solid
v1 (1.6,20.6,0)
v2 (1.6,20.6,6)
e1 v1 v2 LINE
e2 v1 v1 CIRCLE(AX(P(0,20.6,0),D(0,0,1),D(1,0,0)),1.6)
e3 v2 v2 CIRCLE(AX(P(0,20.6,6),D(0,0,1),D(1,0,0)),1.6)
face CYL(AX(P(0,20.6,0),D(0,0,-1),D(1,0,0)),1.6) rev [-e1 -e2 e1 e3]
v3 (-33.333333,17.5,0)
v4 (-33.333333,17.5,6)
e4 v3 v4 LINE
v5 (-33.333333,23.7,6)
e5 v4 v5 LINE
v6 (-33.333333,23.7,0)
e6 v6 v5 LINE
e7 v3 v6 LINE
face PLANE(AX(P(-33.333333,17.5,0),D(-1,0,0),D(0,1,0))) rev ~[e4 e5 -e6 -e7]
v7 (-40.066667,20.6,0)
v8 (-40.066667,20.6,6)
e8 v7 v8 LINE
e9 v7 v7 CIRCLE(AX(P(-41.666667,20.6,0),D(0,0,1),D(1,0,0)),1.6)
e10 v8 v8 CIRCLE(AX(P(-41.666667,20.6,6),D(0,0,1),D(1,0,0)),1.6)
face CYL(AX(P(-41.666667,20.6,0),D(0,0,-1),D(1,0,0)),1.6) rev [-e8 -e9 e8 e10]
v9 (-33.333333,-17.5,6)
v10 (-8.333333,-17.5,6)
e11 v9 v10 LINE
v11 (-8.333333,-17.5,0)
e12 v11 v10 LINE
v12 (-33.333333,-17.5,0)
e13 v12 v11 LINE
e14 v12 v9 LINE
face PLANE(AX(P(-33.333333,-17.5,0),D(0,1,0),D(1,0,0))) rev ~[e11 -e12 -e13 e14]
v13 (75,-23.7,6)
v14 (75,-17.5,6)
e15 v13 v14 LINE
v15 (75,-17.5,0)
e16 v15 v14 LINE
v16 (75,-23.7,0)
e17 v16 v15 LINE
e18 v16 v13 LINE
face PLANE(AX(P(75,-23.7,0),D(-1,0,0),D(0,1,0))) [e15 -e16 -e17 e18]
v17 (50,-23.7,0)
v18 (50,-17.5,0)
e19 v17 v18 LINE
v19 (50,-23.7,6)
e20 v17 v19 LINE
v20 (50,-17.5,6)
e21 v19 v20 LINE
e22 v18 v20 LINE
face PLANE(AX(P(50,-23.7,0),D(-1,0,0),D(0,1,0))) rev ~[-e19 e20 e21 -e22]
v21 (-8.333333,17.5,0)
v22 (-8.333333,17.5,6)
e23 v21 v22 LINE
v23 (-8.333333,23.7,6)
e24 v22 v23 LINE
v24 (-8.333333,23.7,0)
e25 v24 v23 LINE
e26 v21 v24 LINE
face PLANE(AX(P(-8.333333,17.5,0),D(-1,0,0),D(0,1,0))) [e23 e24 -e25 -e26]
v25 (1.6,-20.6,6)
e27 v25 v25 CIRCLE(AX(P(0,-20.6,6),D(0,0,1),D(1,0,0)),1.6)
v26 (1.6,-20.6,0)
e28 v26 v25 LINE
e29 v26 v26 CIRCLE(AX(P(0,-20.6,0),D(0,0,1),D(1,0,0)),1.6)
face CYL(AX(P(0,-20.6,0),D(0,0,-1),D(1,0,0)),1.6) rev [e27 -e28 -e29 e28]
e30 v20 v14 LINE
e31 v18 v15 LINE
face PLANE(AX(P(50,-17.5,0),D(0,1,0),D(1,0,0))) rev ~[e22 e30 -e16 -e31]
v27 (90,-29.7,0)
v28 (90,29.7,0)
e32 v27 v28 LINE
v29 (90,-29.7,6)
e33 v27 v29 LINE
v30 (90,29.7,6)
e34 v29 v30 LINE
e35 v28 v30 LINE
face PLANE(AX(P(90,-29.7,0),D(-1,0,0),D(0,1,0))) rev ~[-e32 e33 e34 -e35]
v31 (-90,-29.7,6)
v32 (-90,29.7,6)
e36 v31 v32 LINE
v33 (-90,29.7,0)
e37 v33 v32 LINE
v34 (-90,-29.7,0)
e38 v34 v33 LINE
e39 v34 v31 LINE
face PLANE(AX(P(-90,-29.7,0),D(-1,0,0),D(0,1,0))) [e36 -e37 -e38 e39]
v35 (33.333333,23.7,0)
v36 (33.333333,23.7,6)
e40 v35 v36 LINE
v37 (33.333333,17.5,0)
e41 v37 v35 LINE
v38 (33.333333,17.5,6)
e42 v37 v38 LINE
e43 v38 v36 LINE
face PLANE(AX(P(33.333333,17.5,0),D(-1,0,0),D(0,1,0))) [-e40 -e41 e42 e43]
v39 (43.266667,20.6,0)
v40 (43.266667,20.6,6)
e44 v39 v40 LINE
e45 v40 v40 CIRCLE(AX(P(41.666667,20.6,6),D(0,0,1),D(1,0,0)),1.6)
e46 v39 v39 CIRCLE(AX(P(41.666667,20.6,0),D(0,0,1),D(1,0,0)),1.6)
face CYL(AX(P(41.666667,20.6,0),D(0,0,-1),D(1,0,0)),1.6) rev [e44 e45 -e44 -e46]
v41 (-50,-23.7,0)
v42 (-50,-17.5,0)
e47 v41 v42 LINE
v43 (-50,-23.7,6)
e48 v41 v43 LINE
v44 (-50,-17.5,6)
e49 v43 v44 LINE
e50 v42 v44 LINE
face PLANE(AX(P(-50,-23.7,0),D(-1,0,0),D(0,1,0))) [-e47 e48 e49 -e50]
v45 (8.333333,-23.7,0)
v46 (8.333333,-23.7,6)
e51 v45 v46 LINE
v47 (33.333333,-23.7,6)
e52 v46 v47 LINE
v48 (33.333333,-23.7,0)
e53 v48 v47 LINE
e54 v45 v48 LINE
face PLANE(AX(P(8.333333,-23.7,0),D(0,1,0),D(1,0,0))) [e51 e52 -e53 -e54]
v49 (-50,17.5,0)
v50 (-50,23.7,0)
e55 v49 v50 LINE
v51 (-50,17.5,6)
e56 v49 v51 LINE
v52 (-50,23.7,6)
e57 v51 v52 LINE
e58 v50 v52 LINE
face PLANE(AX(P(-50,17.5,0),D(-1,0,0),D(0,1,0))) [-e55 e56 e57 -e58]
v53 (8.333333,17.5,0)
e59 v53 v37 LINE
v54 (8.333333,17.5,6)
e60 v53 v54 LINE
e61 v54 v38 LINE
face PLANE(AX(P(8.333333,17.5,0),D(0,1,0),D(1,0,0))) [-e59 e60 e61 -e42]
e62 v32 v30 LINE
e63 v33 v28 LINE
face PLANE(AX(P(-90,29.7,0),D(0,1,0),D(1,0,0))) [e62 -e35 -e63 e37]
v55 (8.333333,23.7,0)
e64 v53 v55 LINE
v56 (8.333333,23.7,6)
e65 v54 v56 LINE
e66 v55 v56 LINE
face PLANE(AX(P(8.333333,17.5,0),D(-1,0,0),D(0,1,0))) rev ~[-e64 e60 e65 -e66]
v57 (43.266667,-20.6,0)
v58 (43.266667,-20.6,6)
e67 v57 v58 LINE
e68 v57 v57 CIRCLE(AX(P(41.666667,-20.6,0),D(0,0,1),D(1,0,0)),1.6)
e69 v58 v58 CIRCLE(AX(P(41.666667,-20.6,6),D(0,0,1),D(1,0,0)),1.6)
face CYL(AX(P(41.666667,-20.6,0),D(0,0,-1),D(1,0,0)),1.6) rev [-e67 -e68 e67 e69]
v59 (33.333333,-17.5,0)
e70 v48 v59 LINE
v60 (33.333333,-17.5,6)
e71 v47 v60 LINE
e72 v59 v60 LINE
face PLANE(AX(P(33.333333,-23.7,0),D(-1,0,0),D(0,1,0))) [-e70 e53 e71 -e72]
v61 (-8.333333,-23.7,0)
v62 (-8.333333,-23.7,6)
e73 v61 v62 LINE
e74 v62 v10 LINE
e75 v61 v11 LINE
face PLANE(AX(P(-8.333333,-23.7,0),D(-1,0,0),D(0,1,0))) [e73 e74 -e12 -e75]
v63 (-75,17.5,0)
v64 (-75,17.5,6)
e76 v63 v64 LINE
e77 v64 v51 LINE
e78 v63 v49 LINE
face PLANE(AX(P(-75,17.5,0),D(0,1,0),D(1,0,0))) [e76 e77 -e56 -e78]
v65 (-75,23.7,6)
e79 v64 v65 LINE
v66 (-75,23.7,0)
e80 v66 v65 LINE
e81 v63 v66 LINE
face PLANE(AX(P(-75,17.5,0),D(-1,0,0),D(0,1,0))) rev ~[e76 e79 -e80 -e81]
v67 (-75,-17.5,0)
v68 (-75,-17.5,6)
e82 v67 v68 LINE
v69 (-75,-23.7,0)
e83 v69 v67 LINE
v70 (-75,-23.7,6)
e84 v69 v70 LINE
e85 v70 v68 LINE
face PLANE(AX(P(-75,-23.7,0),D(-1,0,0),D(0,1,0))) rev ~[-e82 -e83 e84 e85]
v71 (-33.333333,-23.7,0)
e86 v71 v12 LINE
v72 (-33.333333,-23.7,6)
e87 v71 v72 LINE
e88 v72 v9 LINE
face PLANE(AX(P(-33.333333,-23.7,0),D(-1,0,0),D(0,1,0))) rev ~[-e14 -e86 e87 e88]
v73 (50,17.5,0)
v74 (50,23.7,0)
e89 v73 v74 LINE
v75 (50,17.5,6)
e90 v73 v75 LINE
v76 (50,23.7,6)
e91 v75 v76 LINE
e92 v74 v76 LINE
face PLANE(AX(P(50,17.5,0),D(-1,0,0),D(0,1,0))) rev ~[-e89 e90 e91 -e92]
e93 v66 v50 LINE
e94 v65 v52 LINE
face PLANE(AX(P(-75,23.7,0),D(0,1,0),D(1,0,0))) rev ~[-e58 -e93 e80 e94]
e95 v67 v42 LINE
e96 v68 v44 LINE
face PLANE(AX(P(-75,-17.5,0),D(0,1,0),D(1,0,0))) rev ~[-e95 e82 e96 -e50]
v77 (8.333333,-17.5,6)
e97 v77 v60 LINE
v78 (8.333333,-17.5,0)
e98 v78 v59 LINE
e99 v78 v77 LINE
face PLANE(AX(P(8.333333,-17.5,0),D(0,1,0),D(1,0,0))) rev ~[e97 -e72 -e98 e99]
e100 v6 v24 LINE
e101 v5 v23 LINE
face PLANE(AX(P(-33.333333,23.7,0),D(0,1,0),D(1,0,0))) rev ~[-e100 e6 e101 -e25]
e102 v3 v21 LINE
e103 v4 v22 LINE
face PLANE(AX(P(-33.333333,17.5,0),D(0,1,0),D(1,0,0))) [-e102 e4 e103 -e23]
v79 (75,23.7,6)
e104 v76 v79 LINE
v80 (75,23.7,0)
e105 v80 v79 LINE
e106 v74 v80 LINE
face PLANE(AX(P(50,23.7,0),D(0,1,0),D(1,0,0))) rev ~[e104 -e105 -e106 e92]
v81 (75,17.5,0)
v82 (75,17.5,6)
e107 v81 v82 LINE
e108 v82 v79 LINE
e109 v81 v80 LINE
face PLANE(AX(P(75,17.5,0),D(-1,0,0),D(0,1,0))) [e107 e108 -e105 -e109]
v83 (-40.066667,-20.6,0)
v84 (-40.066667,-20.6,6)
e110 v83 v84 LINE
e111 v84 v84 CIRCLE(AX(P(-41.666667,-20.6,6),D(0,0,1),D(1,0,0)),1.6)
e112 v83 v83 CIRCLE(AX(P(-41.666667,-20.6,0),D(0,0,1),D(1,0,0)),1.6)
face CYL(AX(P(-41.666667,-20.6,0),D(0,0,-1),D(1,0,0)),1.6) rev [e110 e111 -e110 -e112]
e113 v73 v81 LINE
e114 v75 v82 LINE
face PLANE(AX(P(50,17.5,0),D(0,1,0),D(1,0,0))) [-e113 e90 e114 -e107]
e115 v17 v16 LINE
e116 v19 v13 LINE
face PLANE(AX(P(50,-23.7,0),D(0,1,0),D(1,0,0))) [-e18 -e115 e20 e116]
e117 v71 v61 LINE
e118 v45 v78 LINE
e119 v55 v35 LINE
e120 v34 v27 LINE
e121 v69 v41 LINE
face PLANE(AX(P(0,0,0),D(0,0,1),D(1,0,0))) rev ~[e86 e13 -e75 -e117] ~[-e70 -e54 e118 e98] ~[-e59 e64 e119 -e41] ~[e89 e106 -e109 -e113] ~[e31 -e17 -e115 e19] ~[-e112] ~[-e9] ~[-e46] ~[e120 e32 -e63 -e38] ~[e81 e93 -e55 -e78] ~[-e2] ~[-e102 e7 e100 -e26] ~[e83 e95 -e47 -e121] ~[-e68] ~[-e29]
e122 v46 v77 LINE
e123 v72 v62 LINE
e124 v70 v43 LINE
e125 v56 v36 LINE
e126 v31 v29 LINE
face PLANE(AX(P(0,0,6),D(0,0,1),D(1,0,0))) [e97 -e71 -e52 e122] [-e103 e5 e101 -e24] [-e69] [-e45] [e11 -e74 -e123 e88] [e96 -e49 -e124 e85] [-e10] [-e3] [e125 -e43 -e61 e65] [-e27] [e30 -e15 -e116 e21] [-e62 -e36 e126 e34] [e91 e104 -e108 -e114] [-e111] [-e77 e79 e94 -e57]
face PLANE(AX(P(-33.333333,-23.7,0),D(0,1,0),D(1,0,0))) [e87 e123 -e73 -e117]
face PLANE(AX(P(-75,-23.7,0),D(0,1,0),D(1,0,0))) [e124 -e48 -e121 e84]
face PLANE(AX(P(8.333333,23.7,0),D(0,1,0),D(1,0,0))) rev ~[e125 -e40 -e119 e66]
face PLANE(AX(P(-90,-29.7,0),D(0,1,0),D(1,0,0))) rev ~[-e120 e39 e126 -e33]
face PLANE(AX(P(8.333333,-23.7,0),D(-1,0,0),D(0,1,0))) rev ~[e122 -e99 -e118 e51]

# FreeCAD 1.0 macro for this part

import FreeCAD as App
import Part
import Sketcher
from FreeCAD import Vector
Q = App.Units.Quantity

doc = App.newDocument("Part")
params = doc.addObject("Spreadsheet::Sheet", "Params")
for row, (alias, value) in enumerate([
    ("sketch1_diameter", "3.2 mm"),
    ("sketch1_width", "180 mm"),
    ("sketch1_width2", "25 mm"),
    ("sketch1_height", "59.4 mm"),
    ("sketch1_height2", "6.2 mm"),
    ("pad1_length", "6 mm"),
], start=1):
    params.set(f"A{row}", alias)
    params.set(f"B{row}", "=" + value)
    params.setAlias(f"B{row}", alias)

body = doc.addObject("PartDesign::Body", "Body")

# Sketch on XY plane
sketch1 = body.newObject("Sketcher::SketchObject", "Sketch")
sketch1.AttachmentSupport = (doc.getObject("XY_Plane"), [""])
sketch1.MapMode = "FlatFace"
sketch1.addGeometry(Part.LineSegment(Vector(-90, 29.7, 0), Vector(-90, -29.7, 0)), False)
sketch1.addGeometry(Part.LineSegment(Vector(-90, -29.7, 0), Vector(90, -29.7, 0)), False)
sketch1.addGeometry(Part.LineSegment(Vector(90, -29.7, 0), Vector(90, 29.7, 0)), False)
sketch1.addGeometry(Part.LineSegment(Vector(90, 29.7, 0), Vector(-90, 29.7, 0)), False)
sketch1.addGeometry(Part.LineSegment(Vector(-50, -23.7, 0), Vector(-75, -23.7, 0)), False)
sketch1.addGeometry(Part.LineSegment(Vector(-75, -23.7, 0), Vector(-75, -17.5, 0)), False)
sketch1.addGeometry(Part.LineSegment(Vector(-75, -17.5, 0), Vector(-50, -17.5, 0)), False)
sketch1.addGeometry(Part.LineSegment(Vector(-50, -17.5, 0), Vector(-50, -23.7, 0)), False)
sketch1.addGeometry(Part.Circle(Vector(-41.7, -20.6, 0), Vector(0, 0, 1), 1.6), False)
sketch1.addGeometry(Part.LineSegment(Vector(-8.3, -23.7, 0), Vector(-33.3, -23.7, 0)), False)
sketch1.addGeometry(Part.LineSegment(Vector(-33.3, -23.7, 0), Vector(-33.3, -17.5, 0)), False)
sketch1.addGeometry(Part.LineSegment(Vector(-33.3, -17.5, 0), Vector(-8.3, -17.5, 0)), False)
sketch1.addGeometry(Part.LineSegment(Vector(-8.3, -17.5, 0), Vector(-8.3, -23.7, 0)), False)
sketch1.addGeometry(Part.Circle(Vector(0, -20.6, 0), Vector(0, 0, 1), 1.6), False)
sketch1.addGeometry(Part.LineSegment(Vector(33.3, -23.7, 0), Vector(8.3, -23.7, 0)), False)
sketch1.addGeometry(Part.LineSegment(Vector(8.3, -23.7, 0), Vector(8.3, -17.5, 0)), False)
sketch1.addGeometry(Part.LineSegment(Vector(8.3, -17.5, 0), Vector(33.3, -17.5, 0)), False)
sketch1.addGeometry(Part.LineSegment(Vector(33.3, -17.5, 0), Vector(33.3, -23.7, 0)), False)
sketch1.addGeometry(Part.Circle(Vector(41.7, -20.6, 0), Vector(0, 0, 1), 1.6), False)
sketch1.addGeometry(Part.LineSegment(Vector(75, -23.7, 0), Vector(50, -23.7, 0)), False)
sketch1.addGeometry(Part.LineSegment(Vector(50, -23.7, 0), Vector(50, -17.5, 0)), False)
sketch1.addGeometry(Part.LineSegment(Vector(50, -17.5, 0), Vector(75, -17.5, 0)), False)
sketch1.addGeometry(Part.LineSegment(Vector(75, -17.5, 0), Vector(75, -23.7, 0)), False)
sketch1.addGeometry(Part.LineSegment(Vector(-50, 17.5, 0), Vector(-75, 17.5, 0)), False)
sketch1.addGeometry(Part.LineSegment(Vector(-75, 17.5, 0), Vector(-75, 23.7, 0)), False)
sketch1.addGeometry(Part.LineSegment(Vector(-75, 23.7, 0), Vector(-50, 23.7, 0)), False)
sketch1.addGeometry(Part.LineSegment(Vector(-50, 23.7, 0), Vector(-50, 17.5, 0)), False)
sketch1.addGeometry(Part.Circle(Vector(-41.7, 20.6, 0), Vector(0, 0, 1), 1.6), False)
sketch1.addGeometry(Part.LineSegment(Vector(-8.3, 17.5, 0), Vector(-33.3, 17.5, 0)), False)
sketch1.addGeometry(Part.LineSegment(Vector(-33.3, 17.5, 0), Vector(-33.3, 23.7, 0)), False)
sketch1.addGeometry(Part.LineSegment(Vector(-33.3, 23.7, 0), Vector(-8.3, 23.7, 0)), False)
sketch1.addGeometry(Part.LineSegment(Vector(-8.3, 23.7, 0), Vector(-8.3, 17.5, 0)), False)
sketch1.addGeometry(Part.Circle(Vector(0, 20.6, 0), Vector(0, 0, 1), 1.6), False)
sketch1.addGeometry(Part.LineSegment(Vector(33.3, 17.5, 0), Vector(8.3, 17.5, 0)), False)
sketch1.addGeometry(Part.LineSegment(Vector(8.3, 17.5, 0), Vector(8.3, 23.7, 0)), False)
sketch1.addGeometry(Part.LineSegment(Vector(8.3, 23.7, 0), Vector(33.3, 23.7, 0)), False)
sketch1.addGeometry(Part.LineSegment(Vector(33.3, 23.7, 0), Vector(33.3, 17.5, 0)), False)
sketch1.addGeometry(Part.Circle(Vector(41.7, 20.6, 0), Vector(0, 0, 1), 1.6), False)
sketch1.addGeometry(Part.LineSegment(Vector(75, 17.5, 0), Vector(50, 17.5, 0)), False)
sketch1.addGeometry(Part.LineSegment(Vector(50, 17.5, 0), Vector(50, 23.7, 0)), False)
sketch1.addGeometry(Part.LineSegment(Vector(50, 23.7, 0), Vector(75, 23.7, 0)), False)
sketch1.addGeometry(Part.LineSegment(Vector(75, 23.7, 0), Vector(75, 17.5, 0)), False)
sketch1.addConstraint(Sketcher.Constraint("Coincident", 0, 2, 1, 1))
sketch1.addConstraint(Sketcher.Constraint("Coincident", 1, 2, 2, 1))
sketch1.addConstraint(Sketcher.Constraint("Coincident", 2, 2, 3, 1))
sketch1.addConstraint(Sketcher.Constraint("Coincident", 3, 2, 0, 1))
sketch1.addConstraint(Sketcher.Constraint("Coincident", 4, 2, 5, 1))
sketch1.addConstraint(Sketcher.Constraint("Coincident", 5, 2, 6, 1))
sketch1.addConstraint(Sketcher.Constraint("Coincident", 6, 2, 7, 1))
sketch1.addConstraint(Sketcher.Constraint("Coincident", 7, 2, 4, 1))
sketch1.addConstraint(Sketcher.Constraint("Coincident", 9, 2, 10, 1))
sketch1.addConstraint(Sketcher.Constraint("Coincident", 10, 2, 11, 1))
sketch1.addConstraint(Sketcher.Constraint("Coincident", 11, 2, 12, 1))
sketch1.addConstraint(Sketcher.Constraint("Coincident", 12, 2, 9, 1))
sketch1.addConstraint(Sketcher.Constraint("Coincident", 14, 2, 15, 1))
sketch1.addConstraint(Sketcher.Constraint("Coincident", 15, 2, 16, 1))
sketch1.addConstraint(Sketcher.Constraint("Coincident", 16, 2, 17, 1))
sketch1.addConstraint(Sketcher.Constraint("Coincident", 17, 2, 14, 1))
sketch1.addConstraint(Sketcher.Constraint("Coincident", 19, 2, 20, 1))
sketch1.addConstraint(Sketcher.Constraint("Coincident", 20, 2, 21, 1))
sketch1.addConstraint(Sketcher.Constraint("Coincident", 21, 2, 22, 1))
sketch1.addConstraint(Sketcher.Constraint("Coincident", 22, 2, 19, 1))
sketch1.addConstraint(Sketcher.Constraint("Coincident", 23, 2, 24, 1))
sketch1.addConstraint(Sketcher.Constraint("Coincident", 24, 2, 25, 1))
sketch1.addConstraint(Sketcher.Constraint("Coincident", 25, 2, 26, 1))
sketch1.addConstraint(Sketcher.Constraint("Coincident", 26, 2, 23, 1))
sketch1.addConstraint(Sketcher.Constraint("Coincident", 28, 2, 29, 1))
sketch1.addConstraint(Sketcher.Constraint("Coincident", 29, 2, 30, 1))
sketch1.addConstraint(Sketcher.Constraint("Coincident", 30, 2, 31, 1))
sketch1.addConstraint(Sketcher.Constraint("Coincident", 31, 2, 28, 1))
sketch1.addConstraint(Sketcher.Constraint("Coincident", 33, 2, 34, 1))
sketch1.addConstraint(Sketcher.Constraint("Coincident", 34, 2, 35, 1))
sketch1.addConstraint(Sketcher.Constraint("Coincident", 35, 2, 36, 1))
sketch1.addConstraint(Sketcher.Constraint("Coincident", 36, 2, 33, 1))
sketch1.addConstraint(Sketcher.Constraint("Coincident", 38, 2, 39, 1))
sketch1.addConstraint(Sketcher.Constraint("Coincident", 39, 2, 40, 1))
sketch1.addConstraint(Sketcher.Constraint("Coincident", 40, 2, 41, 1))
sketch1.addConstraint(Sketcher.Constraint("Coincident", 41, 2, 38, 1))
sketch1.addConstraint(Sketcher.Constraint("Vertical", 0))
sketch1.addConstraint(Sketcher.Constraint("Horizontal", 1))
sketch1.addConstraint(Sketcher.Constraint("Vertical", 2))
sketch1.addConstraint(Sketcher.Constraint("Horizontal", 3))
sketch1.addConstraint(Sketcher.Constraint("Horizontal", 4))
sketch1.addConstraint(Sketcher.Constraint("Vertical", 5))
sketch1.addConstraint(Sketcher.Constraint("Horizontal", 6))
sketch1.addConstraint(Sketcher.Constraint("Vertical", 7))
sketch1.addConstraint(Sketcher.Constraint("Horizontal", 9))
sketch1.addConstraint(Sketcher.Constraint("Vertical", 10))
sketch1.addConstraint(Sketcher.Constraint("Horizontal", 11))
sketch1.addConstraint(Sketcher.Constraint("Vertical", 12))
sketch1.addConstraint(Sketcher.Constraint("Horizontal", 14))
sketch1.addConstraint(Sketcher.Constraint("Vertical", 15))
sketch1.addConstraint(Sketcher.Constraint("Horizontal", 16))
sketch1.addConstraint(Sketcher.Constraint("Vertical", 17))
sketch1.addConstraint(Sketcher.Constraint("Horizontal", 19))
sketch1.addConstraint(Sketcher.Constraint("Vertical", 20))
sketch1.addConstraint(Sketcher.Constraint("Horizontal", 21))
sketch1.addConstraint(Sketcher.Constraint("Vertical", 22))
sketch1.addConstraint(Sketcher.Constraint("Horizontal", 23))
sketch1.addConstraint(Sketcher.Constraint("Vertical", 24))
sketch1.addConstraint(Sketcher.Constraint("Horizontal", 25))
sketch1.addConstraint(Sketcher.Constraint("Vertical", 26))
sketch1.addConstraint(Sketcher.Constraint("Horizontal", 28))
sketch1.addConstraint(Sketcher.Constraint("Vertical", 29))
sketch1.addConstraint(Sketcher.Constraint("Horizontal", 30))
sketch1.addConstraint(Sketcher.Constraint("Vertical", 31))
sketch1.addConstraint(Sketcher.Constraint("Horizontal", 33))
sketch1.addConstraint(Sketcher.Constraint("Vertical", 34))
sketch1.addConstraint(Sketcher.Constraint("Horizontal", 35))
sketch1.addConstraint(Sketcher.Constraint("Vertical", 36))
sketch1.addConstraint(Sketcher.Constraint("Horizontal", 38))
sketch1.addConstraint(Sketcher.Constraint("Vertical", 39))
sketch1.addConstraint(Sketcher.Constraint("Horizontal", 40))
sketch1.addConstraint(Sketcher.Constraint("Vertical", 41))
sketch1.addConstraint(Sketcher.Constraint("Equal", 8, 13))
sketch1.addConstraint(Sketcher.Constraint("Equal", 13, 18))
sketch1.addConstraint(Sketcher.Constraint("Equal", 18, 27))
sketch1.addConstraint(Sketcher.Constraint("Equal", 27, 32))
sketch1.addConstraint(Sketcher.Constraint("Equal", 32, 37))
sketch1.addConstraint(Sketcher.Constraint("Symmetric", 18, 3, 27, 3, -1, 1))
sketch1.addConstraint(Sketcher.Constraint("Symmetric", 13, 3, 32, 3, -1, 1))
sketch1.addConstraint(Sketcher.Constraint("Symmetric", 8, 3, 37, 3, -1, 1))
sketch1.addConstraint(Sketcher.Constraint("Symmetric", 0, 2, 2, 2, -1, 1))
sketch1.addConstraint(Sketcher.Constraint("Symmetric", 21, 2, 23, 2, -1, 1))
sketch1.addConstraint(Sketcher.Constraint("Symmetric", 19, 2, 25, 2, -1, 1))
sketch1.addConstraint(Sketcher.Constraint("Symmetric", 16, 2, 28, 2, -1, 1))
sketch1.addConstraint(Sketcher.Constraint("Symmetric", 14, 2, 30, 2, -1, 1))
sketch1.addConstraint(Sketcher.Constraint("Symmetric", 11, 2, 33, 2, -1, 1))
sketch1.addConstraint(Sketcher.Constraint("Symmetric", 9, 2, 35, 2, -1, 1))
sketch1.addConstraint(Sketcher.Constraint("Symmetric", 6, 2, 38, 2, -1, 1))
sketch1.addConstraint(Sketcher.Constraint("Symmetric", 4, 2, 40, 2, -1, 1))
sketch1.addConstraint(Sketcher.Constraint("Symmetric", 8, 3, 18, 3, -2))
sketch1.addConstraint(Sketcher.Constraint("Symmetric", 12, 2, 14, 2, -2))
sketch1.addConstraint(Sketcher.Constraint("Symmetric", 10, 2, 16, 2, -2))
sketch1.addConstraint(Sketcher.Constraint("Symmetric", 7, 2, 19, 2, -2))
sketch1.addConstraint(Sketcher.Constraint("Symmetric", 5, 2, 21, 2, -2))
sketch1.addConstraint(Sketcher.Constraint("PointOnObject", 13, 3, -2))
sketch1.addConstraint(Sketcher.Constraint("Horizontal", 8, 3, 13, 3))
sketch1.addConstraint(Sketcher.Constraint("Horizontal", 7, 2, 9, 2))
sketch1.addConstraint(Sketcher.Constraint("Horizontal", 6, 2, 10, 2))
sketch1.addConstraint(Sketcher.Constraint("Equal", 6, 9))
sketch1.addConstraint(Sketcher.Constraint("Diameter", 8, Q("3.2 mm")))
sketch1.addConstraint(Sketcher.Constraint("DistanceX", 1, 1, 1, 2, Q("180 mm")))
sketch1.addConstraint(Sketcher.Constraint("DistanceX", 4, 2, 4, 1, Q("25 mm")))
sketch1.addConstraint(Sketcher.Constraint("DistanceY", 0, 2, 0, 1, Q("59.4 mm")))
sketch1.addConstraint(Sketcher.Constraint("DistanceY", 5, 1, 5, 2, Q("6.2 mm")))
sketch1.addConstraint(Sketcher.Constraint("DistanceX", 4, 2, -1, 1, Q("75 mm")))
sketch1.addConstraint(Sketcher.Constraint("DistanceY", 0, 2, 4, 2, Q("6 mm")))
sketch1.addConstraint(Sketcher.Constraint("DistanceY", 8, 3, -1, 1, Q("20.6 mm")))
sketch1.addConstraint(Sketcher.Constraint("DistanceX", 8, 3, -1, 1, Q("41.666667 mm")))
sketch1.addConstraint(Sketcher.Constraint("DistanceX", 9, 2, -1, 1, Q("33.333333 mm")))
sketch1.setExpression("Constraints[99]", "Params.sketch1_diameter")
sketch1.setExpression("Constraints[100]", "Params.sketch1_width")
sketch1.setExpression("Constraints[101]", "Params.sketch1_width2")
sketch1.setExpression("Constraints[102]", "Params.sketch1_height")
sketch1.setExpression("Constraints[103]", "Params.sketch1_height2")
pad1 = body.newObject("PartDesign::Pad", "Pad")
pad1.Profile = sketch1
pad1.setExpression("Length", "Params.pad1_length")

doc.recompute()
